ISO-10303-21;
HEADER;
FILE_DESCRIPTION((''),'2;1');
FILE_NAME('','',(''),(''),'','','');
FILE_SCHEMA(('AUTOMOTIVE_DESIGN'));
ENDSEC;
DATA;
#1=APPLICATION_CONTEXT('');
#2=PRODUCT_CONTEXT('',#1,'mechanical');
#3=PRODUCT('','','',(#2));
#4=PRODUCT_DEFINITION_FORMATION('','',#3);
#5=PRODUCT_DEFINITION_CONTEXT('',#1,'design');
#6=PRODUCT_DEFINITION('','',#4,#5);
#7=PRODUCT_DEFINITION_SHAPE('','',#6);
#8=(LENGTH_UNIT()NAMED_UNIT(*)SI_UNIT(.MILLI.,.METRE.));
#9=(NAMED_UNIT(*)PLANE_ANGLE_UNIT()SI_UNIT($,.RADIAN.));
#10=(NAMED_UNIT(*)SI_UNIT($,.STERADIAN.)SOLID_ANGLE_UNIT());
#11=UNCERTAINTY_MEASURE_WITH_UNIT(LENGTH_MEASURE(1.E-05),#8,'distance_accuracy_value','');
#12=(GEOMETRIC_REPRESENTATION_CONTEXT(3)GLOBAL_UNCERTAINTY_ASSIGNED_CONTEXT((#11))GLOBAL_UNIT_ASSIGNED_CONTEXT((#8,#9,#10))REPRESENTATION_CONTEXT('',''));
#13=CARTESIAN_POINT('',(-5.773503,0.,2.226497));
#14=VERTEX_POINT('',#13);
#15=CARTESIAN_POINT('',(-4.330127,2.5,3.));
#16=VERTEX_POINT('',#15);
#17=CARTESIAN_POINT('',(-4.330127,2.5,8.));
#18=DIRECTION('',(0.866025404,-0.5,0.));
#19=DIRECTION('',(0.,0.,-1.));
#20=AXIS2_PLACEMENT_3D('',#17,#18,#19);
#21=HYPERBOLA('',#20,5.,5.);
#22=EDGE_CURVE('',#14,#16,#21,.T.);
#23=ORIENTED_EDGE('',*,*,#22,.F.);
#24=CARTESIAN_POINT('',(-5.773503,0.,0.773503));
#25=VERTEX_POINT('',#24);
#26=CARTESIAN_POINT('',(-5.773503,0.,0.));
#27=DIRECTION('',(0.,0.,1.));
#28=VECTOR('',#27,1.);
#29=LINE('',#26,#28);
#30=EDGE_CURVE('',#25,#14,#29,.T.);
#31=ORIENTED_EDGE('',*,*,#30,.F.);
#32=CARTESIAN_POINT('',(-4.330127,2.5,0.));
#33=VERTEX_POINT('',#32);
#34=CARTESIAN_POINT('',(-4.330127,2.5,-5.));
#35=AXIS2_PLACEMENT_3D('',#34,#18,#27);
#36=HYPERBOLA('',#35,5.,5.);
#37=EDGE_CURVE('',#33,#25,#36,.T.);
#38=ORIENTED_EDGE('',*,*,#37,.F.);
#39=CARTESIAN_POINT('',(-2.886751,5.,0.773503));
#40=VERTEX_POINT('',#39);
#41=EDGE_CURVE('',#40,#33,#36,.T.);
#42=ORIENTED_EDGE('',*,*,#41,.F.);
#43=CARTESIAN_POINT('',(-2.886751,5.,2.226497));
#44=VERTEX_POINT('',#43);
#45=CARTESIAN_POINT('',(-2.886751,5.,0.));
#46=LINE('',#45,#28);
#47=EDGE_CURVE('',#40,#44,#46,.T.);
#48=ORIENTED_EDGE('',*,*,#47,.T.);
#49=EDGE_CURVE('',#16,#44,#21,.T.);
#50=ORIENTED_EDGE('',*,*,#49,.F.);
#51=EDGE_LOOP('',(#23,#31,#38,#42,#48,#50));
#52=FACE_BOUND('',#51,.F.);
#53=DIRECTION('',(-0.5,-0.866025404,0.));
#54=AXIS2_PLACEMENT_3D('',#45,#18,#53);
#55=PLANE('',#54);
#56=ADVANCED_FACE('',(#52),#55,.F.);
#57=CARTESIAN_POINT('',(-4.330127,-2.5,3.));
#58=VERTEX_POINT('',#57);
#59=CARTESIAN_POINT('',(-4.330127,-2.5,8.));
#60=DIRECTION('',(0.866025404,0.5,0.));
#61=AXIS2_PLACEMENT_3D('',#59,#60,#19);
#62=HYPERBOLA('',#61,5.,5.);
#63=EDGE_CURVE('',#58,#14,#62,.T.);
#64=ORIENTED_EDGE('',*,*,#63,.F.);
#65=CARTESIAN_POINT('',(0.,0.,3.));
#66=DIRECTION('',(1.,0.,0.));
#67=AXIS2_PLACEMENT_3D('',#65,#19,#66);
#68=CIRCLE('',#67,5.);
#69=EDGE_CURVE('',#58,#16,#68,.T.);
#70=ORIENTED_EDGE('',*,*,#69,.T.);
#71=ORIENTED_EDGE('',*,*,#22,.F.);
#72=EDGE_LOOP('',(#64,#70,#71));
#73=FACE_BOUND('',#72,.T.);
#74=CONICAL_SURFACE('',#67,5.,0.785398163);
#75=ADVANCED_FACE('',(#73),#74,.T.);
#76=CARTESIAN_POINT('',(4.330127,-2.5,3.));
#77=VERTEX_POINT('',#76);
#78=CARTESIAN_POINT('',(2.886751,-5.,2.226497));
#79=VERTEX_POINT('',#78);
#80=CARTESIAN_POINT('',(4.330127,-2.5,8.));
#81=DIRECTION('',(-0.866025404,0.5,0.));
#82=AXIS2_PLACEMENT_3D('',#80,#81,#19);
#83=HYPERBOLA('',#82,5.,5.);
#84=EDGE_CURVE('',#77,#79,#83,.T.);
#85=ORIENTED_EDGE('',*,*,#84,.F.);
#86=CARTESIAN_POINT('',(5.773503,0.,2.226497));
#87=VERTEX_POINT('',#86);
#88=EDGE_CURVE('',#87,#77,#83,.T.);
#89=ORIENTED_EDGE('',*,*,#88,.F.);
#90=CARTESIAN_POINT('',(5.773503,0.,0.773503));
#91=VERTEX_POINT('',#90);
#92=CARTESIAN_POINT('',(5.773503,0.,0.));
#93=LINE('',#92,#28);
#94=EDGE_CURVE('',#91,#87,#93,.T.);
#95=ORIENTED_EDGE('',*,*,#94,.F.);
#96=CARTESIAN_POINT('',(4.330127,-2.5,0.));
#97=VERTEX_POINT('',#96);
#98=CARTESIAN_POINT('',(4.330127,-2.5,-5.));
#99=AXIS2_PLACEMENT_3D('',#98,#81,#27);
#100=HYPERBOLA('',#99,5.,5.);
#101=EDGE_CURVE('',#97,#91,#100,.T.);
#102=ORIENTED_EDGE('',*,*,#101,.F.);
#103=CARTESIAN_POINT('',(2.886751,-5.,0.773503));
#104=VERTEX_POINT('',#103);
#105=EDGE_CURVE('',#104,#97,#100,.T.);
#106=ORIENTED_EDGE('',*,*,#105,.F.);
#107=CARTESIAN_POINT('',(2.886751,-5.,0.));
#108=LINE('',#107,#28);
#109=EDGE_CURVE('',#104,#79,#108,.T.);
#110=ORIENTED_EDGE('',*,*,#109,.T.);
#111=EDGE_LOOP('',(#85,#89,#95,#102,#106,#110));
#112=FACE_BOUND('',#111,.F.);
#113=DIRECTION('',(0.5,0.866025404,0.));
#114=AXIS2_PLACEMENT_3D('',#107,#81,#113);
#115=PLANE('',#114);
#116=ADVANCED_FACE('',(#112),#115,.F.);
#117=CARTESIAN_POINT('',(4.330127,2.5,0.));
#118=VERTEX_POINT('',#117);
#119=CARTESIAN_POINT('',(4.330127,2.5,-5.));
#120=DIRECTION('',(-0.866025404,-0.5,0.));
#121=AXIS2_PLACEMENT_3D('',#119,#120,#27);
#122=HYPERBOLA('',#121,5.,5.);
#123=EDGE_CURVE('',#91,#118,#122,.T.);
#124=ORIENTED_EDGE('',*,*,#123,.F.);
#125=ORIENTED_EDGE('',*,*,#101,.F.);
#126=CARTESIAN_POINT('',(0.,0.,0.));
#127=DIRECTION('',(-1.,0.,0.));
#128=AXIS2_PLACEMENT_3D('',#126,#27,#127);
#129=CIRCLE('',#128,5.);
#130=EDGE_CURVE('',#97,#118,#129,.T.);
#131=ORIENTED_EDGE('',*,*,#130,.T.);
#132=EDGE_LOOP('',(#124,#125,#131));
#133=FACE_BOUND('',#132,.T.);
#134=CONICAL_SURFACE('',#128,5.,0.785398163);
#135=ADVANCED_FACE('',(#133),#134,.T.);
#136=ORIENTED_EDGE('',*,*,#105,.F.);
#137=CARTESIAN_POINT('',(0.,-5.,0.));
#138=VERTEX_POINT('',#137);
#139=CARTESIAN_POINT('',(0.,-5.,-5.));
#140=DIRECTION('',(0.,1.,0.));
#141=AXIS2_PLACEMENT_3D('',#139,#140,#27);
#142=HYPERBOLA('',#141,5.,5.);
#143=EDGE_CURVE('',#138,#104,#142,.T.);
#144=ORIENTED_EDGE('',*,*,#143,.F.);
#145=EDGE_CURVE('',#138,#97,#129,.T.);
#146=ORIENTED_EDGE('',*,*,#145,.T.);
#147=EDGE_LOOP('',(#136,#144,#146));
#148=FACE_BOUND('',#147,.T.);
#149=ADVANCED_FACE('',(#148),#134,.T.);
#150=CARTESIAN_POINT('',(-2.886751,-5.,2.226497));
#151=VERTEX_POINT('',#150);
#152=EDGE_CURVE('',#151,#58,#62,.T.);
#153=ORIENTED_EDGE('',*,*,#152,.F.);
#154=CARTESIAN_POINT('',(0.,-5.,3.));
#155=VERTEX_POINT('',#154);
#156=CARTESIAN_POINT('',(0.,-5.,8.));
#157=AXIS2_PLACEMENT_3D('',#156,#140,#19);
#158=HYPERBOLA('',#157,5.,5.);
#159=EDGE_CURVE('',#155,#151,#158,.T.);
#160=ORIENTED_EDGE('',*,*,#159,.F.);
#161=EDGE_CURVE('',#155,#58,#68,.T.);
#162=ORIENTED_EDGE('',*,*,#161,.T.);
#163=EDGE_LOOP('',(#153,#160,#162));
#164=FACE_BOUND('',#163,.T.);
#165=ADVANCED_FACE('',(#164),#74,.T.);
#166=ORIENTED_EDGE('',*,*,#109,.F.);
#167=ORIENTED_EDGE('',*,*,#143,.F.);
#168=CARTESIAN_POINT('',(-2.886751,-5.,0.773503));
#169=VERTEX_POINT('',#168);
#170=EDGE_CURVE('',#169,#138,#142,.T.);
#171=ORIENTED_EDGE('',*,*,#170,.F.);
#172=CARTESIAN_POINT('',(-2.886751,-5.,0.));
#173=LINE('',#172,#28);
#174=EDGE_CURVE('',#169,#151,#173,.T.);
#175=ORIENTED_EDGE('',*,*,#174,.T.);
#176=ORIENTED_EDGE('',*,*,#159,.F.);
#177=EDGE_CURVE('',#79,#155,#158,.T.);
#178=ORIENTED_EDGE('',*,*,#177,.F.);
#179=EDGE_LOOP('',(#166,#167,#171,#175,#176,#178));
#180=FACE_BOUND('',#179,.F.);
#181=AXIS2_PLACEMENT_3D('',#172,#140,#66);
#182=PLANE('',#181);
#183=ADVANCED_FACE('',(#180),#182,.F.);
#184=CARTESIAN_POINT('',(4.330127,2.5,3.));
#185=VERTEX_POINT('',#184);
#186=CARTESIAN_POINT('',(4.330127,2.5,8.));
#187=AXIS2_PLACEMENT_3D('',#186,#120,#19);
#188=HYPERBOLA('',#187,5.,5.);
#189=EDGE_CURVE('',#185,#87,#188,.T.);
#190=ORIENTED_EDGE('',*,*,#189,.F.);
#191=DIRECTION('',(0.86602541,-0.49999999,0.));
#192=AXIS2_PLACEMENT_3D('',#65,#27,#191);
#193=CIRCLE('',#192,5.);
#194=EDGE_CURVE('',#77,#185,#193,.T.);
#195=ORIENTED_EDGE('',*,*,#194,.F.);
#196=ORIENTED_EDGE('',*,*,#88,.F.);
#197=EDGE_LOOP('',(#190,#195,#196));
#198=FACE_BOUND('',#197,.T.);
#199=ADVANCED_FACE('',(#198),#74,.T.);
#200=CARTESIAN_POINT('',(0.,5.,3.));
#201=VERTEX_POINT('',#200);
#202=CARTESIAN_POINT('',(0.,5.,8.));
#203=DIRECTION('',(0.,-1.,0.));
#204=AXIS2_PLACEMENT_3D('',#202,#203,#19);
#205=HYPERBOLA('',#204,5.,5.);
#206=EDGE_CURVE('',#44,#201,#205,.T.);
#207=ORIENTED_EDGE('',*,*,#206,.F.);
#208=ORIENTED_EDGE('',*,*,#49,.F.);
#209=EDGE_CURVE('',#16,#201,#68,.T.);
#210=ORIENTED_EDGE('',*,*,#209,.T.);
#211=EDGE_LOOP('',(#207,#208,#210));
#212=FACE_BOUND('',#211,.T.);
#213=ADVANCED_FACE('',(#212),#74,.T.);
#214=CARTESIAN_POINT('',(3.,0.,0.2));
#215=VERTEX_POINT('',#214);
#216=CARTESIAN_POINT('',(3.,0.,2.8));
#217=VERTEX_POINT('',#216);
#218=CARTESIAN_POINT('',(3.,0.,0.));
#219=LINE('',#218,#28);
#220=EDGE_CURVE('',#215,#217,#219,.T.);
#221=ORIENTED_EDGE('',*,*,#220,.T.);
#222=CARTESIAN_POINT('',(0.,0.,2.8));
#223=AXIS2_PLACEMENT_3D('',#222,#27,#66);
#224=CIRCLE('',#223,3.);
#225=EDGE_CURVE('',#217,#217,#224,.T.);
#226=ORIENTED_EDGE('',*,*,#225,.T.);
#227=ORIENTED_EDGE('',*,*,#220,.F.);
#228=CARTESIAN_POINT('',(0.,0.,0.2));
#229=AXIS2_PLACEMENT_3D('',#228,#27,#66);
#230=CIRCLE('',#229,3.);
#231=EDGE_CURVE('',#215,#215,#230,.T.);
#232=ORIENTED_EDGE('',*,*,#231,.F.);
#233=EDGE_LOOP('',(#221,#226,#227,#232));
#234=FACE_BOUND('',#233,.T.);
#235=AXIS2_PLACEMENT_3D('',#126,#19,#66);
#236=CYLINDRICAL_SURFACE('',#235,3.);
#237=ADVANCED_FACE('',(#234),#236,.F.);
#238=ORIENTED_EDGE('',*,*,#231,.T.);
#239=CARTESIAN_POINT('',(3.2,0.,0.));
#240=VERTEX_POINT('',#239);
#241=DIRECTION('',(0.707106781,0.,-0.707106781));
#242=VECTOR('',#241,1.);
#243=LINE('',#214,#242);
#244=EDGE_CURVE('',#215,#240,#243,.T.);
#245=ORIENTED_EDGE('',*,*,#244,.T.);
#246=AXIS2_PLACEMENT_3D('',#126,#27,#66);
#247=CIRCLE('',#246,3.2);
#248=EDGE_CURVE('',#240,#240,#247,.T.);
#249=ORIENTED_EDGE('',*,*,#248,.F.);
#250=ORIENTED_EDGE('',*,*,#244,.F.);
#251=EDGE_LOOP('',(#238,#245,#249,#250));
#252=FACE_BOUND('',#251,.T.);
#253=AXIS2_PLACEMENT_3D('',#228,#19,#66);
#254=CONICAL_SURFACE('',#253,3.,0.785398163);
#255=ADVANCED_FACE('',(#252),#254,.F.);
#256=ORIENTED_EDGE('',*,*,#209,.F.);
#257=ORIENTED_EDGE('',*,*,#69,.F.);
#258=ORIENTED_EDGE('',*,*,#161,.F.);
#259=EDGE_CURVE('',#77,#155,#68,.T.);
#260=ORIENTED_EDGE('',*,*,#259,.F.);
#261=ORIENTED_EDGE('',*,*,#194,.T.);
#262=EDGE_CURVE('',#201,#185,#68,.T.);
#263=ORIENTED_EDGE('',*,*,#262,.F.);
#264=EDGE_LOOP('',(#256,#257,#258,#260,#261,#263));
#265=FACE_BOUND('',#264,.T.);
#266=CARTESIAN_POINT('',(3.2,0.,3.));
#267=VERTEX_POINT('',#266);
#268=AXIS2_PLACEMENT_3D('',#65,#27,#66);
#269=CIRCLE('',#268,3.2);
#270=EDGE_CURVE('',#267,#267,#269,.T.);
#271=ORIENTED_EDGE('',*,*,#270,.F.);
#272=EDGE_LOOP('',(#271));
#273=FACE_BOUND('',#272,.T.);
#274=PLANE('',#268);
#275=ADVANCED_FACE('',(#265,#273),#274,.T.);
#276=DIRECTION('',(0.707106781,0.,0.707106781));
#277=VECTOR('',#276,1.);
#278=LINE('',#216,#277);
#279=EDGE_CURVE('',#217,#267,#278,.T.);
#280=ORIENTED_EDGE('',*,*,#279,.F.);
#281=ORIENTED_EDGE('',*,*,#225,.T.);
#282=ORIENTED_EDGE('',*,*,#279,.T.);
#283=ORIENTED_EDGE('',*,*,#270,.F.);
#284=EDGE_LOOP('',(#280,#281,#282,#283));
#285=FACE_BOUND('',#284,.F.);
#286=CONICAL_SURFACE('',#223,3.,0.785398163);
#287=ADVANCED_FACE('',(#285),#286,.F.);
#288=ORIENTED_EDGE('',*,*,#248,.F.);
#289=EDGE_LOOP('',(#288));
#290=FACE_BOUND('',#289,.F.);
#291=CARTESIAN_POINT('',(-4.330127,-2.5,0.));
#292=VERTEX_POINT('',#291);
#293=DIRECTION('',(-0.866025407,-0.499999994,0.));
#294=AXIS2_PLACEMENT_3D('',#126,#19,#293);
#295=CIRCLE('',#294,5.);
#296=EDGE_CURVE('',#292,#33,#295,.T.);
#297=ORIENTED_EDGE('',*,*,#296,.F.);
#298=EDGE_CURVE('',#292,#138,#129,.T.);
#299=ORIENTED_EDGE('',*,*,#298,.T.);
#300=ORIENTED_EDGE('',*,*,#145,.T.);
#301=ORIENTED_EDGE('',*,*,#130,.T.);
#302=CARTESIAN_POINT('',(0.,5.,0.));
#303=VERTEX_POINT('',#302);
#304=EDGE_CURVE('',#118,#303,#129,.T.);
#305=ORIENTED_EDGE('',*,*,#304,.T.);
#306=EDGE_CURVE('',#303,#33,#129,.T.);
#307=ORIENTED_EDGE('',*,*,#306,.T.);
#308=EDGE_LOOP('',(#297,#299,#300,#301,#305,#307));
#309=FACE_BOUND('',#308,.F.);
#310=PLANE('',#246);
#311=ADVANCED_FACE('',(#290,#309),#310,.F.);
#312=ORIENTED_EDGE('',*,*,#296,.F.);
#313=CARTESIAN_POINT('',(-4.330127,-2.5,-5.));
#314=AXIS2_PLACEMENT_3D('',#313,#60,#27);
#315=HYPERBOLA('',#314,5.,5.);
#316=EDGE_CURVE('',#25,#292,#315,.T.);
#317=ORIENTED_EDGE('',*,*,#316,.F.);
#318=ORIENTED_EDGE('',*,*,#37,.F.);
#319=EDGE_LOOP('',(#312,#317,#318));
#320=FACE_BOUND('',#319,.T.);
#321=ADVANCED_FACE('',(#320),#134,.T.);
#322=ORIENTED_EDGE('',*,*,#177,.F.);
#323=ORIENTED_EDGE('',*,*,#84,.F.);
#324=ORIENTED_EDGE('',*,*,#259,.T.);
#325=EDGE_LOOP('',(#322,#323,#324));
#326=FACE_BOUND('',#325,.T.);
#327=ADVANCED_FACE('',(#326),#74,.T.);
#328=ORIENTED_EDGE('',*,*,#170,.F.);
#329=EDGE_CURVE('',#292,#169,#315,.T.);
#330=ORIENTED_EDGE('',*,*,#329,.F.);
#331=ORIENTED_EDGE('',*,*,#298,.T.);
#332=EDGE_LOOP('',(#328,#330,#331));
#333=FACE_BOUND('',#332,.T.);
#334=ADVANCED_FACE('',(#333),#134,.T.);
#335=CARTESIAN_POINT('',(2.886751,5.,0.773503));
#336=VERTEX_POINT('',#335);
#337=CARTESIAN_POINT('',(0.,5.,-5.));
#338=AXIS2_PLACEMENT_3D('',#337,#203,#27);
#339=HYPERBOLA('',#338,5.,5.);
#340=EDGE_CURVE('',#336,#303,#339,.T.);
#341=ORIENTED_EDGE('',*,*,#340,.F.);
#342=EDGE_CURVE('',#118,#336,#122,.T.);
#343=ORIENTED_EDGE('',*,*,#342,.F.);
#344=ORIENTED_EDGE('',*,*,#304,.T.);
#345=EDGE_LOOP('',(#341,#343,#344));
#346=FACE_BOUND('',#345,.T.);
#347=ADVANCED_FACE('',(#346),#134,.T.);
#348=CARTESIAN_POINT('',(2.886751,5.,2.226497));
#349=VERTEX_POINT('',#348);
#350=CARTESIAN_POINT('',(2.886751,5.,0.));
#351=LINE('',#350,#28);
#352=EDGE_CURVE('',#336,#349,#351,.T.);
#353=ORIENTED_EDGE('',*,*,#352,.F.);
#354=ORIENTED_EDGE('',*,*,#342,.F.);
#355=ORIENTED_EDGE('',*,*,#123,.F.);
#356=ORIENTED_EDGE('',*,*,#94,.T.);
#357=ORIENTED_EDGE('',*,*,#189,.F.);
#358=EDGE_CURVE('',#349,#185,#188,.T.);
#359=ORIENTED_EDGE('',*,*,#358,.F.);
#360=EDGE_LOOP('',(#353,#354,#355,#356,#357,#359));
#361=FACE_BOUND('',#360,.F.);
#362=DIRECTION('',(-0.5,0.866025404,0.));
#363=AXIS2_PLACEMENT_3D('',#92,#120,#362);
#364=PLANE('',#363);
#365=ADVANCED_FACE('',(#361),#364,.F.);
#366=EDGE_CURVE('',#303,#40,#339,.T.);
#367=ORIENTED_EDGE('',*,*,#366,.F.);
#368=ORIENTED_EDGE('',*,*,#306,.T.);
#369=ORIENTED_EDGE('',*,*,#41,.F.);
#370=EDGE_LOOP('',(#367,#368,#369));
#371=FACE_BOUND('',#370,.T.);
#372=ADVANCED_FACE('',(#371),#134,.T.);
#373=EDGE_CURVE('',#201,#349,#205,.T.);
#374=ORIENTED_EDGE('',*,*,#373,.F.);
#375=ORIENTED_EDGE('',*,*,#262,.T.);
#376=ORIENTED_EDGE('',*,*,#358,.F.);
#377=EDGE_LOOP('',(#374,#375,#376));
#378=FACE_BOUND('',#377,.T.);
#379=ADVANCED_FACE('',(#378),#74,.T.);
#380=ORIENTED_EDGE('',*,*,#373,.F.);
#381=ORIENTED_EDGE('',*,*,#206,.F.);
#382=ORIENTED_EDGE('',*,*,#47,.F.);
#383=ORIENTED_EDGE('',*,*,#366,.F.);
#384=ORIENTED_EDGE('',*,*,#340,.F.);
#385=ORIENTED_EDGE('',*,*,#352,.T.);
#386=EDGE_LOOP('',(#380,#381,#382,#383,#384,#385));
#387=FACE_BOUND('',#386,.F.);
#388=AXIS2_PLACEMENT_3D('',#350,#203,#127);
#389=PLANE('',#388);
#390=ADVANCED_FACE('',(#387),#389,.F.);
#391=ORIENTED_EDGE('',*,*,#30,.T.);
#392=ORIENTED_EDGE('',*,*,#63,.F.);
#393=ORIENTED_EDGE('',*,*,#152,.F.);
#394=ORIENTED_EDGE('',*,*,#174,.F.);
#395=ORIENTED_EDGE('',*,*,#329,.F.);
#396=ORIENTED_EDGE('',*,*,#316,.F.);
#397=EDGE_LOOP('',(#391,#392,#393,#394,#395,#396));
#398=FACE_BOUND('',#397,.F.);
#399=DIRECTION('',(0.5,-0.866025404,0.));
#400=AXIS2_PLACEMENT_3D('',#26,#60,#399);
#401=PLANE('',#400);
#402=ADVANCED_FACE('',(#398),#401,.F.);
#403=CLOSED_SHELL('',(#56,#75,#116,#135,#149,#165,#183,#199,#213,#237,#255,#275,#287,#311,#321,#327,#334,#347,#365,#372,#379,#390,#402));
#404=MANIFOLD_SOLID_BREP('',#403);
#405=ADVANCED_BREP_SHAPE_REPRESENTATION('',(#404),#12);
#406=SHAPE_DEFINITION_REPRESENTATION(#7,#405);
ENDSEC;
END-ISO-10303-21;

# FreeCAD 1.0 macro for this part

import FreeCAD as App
import Part
import Sketcher

V = App.Vector
Q = App.Units.Quantity


def edges_at(feature, points):
    """Names of the edges that pass closest to the given points."""
    edges = feature.Shape.Edges
    near = lambda p: min(range(len(edges)), key=lambda i: edges[i].distToShape(Part.Vertex(*p))[0])
    return sorted({f"Edge{near(p) + 1}" for p in points})

doc = App.newDocument("Part")
body = doc.addObject("PartDesign::Body", "Body")

sketch1 = doc.addObject("Sketcher::SketchObject", "Sketch")
body.addObject(sketch1)
sketch1.AttachmentSupport = (doc.XY_Plane, [""])
sketch1.MapMode = "FlatFace"
sketch1.addGeometry([
    Part.LineSegment(V(5.8, 0, 0), V(2.9, 5, 0)),
    Part.LineSegment(V(2.9, 5, 0), V(-2.9, 5, 0)),
    Part.LineSegment(V(-2.9, 5, 0), V(-5.8, 0, 0)),
    Part.LineSegment(V(-5.8, 0, 0), V(-2.9, -5, 0)),
    Part.LineSegment(V(-2.9, -5, 0), V(2.9, -5, 0)),
    Part.LineSegment(V(2.9, -5, 0), V(5.8, 0, 0)),
    Part.Circle(V(0, 0, 0), V(0, 0, 1), 3),
], False)
sketch1.addConstraint([
    Sketcher.Constraint("Coincident", 0, 2, 1, 1),
    Sketcher.Constraint("Coincident", 1, 2, 2, 1),
    Sketcher.Constraint("Coincident", 2, 2, 3, 1),
    Sketcher.Constraint("Coincident", 3, 2, 4, 1),
    Sketcher.Constraint("Coincident", 4, 2, 5, 1),
    Sketcher.Constraint("Coincident", 5, 2, 0, 1),
    Sketcher.Constraint("Horizontal", 1),
    Sketcher.Constraint("Horizontal", 4),
    Sketcher.Constraint("Coincident", 6, 3, -1, 1),
    Sketcher.Constraint("Symmetric", 0, 2, 3, 2, -1, 1),
    Sketcher.Constraint("Symmetric", 2, 2, 5, 2, -1, 1),
    Sketcher.Constraint("PointOnObject", 2, 2, -1),
    Sketcher.Constraint("Parallel", 2, 5),
    Sketcher.Constraint("Vertical", 1, 2, 3, 2),
    Sketcher.Constraint("Diameter", 6, 6.0),
    Sketcher.Constraint("Angle", 0, Q("120 deg")),
    Sketcher.Constraint("DistanceY", -1, 1, 0, 2, 5.0),
    Sketcher.Constraint("DistanceX", 1, 2, 1, 1, 5.773503),
])
pad1 = doc.addObject("PartDesign::Pad", "Pad")
body.addObject(pad1)
pad1.Profile = sketch1
pad1.Length = 3
doc.recompute()

chamfer = doc.addObject("PartDesign::Chamfer", "Chamfer")
body.addObject(chamfer)
chamfer.Base = (pad1, edges_at(pad1, [(-3, 0, 0), (-3, 0, 3)]))
chamfer.Size = 0.2

sketch2 = doc.addObject("Sketcher::SketchObject", "Sketch001")
body.addObject(sketch2)
sketch2.AttachmentSupport = (doc.XY_Plane, [""])
sketch2.MapMode = "FlatFace"
sketch2.AttachmentOffset = App.Placement(V(0, 0, 3), App.Rotation())
sketch2.addGeometry([
    Part.LineSegment(V(-11, 11, 0), V(-11, -11, 0)),
    Part.LineSegment(V(-11, -11, 0), V(11, -11, 0)),
    Part.LineSegment(V(11, -11, 0), V(11, 11, 0)),
    Part.LineSegment(V(11, 11, 0), V(-11, 11, 0)),
    Part.Circle(V(0, 0, 0), V(0, 0, 1), 5),
], False)
sketch2.addConstraint([
    Sketcher.Constraint("Coincident", 0, 2, 1, 1),
    Sketcher.Constraint("Coincident", 1, 2, 2, 1),
    Sketcher.Constraint("Coincident", 2, 2, 3, 1),
    Sketcher.Constraint("Coincident", 3, 2, 0, 1),
    Sketcher.Constraint("Vertical", 0),
    Sketcher.Constraint("Horizontal", 1),
    Sketcher.Constraint("Vertical", 2),
    Sketcher.Constraint("Horizontal", 3),
    Sketcher.Constraint("Coincident", 4, 3, -1, 1),
    Sketcher.Constraint("Symmetric", 0, 2, 2, 2, -1, 1),
    Sketcher.Constraint("Diameter", 4, 10.0),
    Sketcher.Constraint("DistanceX", 1, 1, 1, 2, 22.662),
    Sketcher.Constraint("DistanceY", 0, 2, 0, 1, 21.114),
])
pocket1 = doc.addObject("PartDesign::Pocket", "Pocket")
body.addObject(pocket1)
pocket1.Profile = sketch2
pocket1.Length = 3
pocket1.TaperAngle = 45

sketch3 = doc.addObject("Sketcher::SketchObject", "Sketch002")
body.addObject(sketch3)
sketch3.AttachmentSupport = (doc.XY_Plane, [""])
sketch3.MapMode = "FlatFace"
sketch3.addGeometry([
    Part.LineSegment(V(11, 11, 0), V(11, -11, 0)),
    Part.LineSegment(V(11, -11, 0), V(-11, -11, 0)),
    Part.LineSegment(V(-11, -11, 0), V(-11, 11, 0)),
    Part.LineSegment(V(-11, 11, 0), V(11, 11, 0)),
    Part.Circle(V(0, 0, 0), V(0, 0, 1), 5),
], False)
sketch3.addConstraint([
    Sketcher.Constraint("Coincident", 0, 2, 1, 1),
    Sketcher.Constraint("Coincident", 1, 2, 2, 1),
    Sketcher.Constraint("Coincident", 2, 2, 3, 1),
    Sketcher.Constraint("Coincident", 3, 2, 0, 1),
    Sketcher.Constraint("Vertical", 0),
    Sketcher.Constraint("Horizontal", 1),
    Sketcher.Constraint("Vertical", 2),
    Sketcher.Constraint("Horizontal", 3),
    Sketcher.Constraint("Coincident", 4, 3, -1, 1),
    Sketcher.Constraint("Symmetric", 0, 2, 2, 2, -1, 1),
    Sketcher.Constraint("Diameter", 4, 10.0),
    Sketcher.Constraint("DistanceX", 1, 2, 1, 1, 22.662),
    Sketcher.Constraint("DistanceY", 0, 2, 0, 1, 21.114),
])
pocket2 = doc.addObject("PartDesign::Pocket", "Pocket001")
body.addObject(pocket2)
pocket2.Profile = sketch3
pocket2.Length = 3
pocket2.Reversed = True
pocket2.TaperAngle = 45

doc.recompute()
